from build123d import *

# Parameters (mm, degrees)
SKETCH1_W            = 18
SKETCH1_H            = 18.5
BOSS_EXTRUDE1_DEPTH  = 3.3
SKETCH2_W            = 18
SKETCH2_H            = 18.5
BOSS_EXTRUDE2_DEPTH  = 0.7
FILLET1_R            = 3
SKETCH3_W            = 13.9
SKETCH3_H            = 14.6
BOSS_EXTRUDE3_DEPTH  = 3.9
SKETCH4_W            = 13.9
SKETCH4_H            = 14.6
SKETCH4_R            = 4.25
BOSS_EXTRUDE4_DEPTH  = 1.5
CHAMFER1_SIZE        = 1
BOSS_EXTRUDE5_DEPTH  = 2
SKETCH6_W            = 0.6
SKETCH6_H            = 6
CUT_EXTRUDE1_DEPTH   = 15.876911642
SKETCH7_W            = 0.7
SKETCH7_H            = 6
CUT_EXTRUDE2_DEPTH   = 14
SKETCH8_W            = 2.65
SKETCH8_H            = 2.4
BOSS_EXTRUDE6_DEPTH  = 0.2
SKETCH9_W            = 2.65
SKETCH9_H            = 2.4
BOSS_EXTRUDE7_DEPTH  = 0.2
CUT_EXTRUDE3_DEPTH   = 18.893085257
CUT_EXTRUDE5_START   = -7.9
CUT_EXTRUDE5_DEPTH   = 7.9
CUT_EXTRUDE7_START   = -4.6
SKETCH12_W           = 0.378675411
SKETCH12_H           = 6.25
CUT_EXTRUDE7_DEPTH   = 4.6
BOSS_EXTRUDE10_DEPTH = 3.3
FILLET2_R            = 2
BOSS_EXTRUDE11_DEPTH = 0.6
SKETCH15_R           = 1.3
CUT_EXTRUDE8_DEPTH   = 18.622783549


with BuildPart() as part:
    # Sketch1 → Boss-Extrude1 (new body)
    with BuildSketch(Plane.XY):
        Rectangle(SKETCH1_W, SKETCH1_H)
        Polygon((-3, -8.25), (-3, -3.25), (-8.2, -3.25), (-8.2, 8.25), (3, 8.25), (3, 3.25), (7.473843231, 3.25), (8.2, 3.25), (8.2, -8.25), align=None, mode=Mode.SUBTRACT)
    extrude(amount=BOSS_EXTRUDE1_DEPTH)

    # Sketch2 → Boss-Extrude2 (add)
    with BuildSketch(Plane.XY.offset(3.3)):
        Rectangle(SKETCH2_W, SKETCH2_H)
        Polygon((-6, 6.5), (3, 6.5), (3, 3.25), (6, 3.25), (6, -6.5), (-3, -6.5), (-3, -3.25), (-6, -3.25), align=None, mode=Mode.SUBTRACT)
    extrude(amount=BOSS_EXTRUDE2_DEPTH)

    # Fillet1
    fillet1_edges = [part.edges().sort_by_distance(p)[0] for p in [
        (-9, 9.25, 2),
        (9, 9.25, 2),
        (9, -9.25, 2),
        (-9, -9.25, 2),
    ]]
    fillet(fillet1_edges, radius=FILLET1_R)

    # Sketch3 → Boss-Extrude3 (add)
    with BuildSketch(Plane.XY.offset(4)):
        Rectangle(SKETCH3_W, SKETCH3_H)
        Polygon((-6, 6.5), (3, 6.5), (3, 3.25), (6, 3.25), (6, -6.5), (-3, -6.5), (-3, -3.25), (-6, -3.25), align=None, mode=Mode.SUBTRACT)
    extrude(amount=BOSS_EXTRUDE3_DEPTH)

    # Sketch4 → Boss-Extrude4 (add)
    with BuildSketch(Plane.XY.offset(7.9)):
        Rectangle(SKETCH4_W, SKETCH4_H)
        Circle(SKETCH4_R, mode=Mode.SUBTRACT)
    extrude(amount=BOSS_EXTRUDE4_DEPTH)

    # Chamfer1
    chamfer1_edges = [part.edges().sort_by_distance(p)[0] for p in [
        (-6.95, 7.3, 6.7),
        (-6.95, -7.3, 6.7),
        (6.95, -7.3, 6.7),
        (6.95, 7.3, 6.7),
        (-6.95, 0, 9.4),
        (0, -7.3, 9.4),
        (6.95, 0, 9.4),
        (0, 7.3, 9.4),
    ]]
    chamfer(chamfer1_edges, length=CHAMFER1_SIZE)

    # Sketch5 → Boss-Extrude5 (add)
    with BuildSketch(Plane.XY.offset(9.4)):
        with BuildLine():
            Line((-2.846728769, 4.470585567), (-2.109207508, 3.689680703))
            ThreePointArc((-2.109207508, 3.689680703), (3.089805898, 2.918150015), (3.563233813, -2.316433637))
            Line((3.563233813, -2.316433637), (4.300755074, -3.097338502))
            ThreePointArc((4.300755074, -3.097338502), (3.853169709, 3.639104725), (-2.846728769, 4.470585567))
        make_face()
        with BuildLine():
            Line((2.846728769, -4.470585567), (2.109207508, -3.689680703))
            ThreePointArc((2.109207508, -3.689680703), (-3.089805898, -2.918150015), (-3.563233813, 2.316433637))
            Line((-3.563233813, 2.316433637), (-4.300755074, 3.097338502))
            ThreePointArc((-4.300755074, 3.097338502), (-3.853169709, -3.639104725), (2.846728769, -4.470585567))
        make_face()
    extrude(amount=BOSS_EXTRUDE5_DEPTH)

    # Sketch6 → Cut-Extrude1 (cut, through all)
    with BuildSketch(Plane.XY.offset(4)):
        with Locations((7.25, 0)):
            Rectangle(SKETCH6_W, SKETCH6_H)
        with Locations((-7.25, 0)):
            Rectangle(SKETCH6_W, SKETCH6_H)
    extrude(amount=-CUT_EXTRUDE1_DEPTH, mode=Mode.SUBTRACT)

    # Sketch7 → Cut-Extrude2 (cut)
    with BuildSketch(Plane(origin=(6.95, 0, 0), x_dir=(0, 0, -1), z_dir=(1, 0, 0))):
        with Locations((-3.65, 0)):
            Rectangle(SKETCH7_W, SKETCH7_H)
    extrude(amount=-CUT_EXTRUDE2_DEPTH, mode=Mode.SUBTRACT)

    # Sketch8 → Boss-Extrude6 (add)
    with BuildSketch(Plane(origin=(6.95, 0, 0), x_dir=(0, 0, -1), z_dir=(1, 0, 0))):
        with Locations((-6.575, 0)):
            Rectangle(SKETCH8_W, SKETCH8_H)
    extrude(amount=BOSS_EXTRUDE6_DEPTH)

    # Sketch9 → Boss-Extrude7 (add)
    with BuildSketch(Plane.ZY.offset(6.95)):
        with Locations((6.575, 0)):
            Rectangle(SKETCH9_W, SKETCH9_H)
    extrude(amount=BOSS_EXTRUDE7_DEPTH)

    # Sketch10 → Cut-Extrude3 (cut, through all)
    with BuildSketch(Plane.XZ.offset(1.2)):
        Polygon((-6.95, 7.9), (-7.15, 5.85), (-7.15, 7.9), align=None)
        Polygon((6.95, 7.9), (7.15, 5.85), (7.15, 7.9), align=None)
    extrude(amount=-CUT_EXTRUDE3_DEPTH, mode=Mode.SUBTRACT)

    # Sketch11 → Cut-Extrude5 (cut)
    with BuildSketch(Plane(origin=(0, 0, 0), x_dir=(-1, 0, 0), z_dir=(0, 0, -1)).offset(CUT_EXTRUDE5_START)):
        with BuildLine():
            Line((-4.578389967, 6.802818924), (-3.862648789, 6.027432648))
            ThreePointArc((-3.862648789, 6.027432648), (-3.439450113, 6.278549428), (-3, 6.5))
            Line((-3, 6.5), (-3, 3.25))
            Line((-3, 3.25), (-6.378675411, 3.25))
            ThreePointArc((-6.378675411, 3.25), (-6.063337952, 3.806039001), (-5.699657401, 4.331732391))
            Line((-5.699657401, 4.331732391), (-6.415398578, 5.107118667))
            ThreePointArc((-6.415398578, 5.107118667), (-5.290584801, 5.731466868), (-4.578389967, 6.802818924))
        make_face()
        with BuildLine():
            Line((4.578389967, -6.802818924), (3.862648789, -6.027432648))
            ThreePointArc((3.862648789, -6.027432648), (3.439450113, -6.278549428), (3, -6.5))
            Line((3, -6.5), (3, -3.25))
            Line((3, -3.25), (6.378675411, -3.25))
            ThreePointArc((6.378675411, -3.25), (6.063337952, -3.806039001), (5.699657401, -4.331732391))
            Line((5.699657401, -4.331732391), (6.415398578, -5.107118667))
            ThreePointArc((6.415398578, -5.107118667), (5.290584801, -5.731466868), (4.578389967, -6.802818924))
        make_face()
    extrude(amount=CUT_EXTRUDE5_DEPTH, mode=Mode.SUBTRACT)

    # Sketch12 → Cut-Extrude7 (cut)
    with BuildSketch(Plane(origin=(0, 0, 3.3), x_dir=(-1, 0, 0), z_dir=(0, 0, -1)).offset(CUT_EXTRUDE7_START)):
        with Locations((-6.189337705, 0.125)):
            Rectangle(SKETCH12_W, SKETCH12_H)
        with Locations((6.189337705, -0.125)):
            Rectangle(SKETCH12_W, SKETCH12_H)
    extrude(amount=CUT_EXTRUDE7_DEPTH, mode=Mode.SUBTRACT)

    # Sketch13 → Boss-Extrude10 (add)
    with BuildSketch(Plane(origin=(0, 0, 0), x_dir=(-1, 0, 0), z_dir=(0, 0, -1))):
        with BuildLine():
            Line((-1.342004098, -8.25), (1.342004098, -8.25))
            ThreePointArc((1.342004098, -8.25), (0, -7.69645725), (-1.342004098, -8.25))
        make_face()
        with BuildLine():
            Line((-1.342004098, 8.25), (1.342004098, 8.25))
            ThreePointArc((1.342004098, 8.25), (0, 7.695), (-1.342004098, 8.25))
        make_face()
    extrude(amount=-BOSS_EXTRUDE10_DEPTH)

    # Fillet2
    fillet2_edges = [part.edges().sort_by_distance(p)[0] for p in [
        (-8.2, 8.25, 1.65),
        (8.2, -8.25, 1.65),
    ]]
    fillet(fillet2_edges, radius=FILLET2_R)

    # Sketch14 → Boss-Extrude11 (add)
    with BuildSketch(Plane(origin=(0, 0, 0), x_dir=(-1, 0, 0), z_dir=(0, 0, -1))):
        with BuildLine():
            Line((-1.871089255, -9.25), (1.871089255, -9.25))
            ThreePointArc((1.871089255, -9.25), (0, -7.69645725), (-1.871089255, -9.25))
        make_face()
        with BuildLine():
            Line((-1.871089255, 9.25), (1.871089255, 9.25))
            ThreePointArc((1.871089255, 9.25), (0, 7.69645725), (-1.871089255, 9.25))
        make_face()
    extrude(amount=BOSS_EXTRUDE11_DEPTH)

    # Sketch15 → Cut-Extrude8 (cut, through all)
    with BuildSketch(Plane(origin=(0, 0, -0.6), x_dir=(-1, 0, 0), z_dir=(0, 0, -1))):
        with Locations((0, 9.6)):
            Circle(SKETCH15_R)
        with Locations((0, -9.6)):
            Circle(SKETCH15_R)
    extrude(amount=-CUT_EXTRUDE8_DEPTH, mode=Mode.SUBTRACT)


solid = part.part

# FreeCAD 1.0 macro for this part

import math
import FreeCAD as App
import Part
import Sketcher
from FreeCAD import Vector
Q = App.Units.Quantity


def edges_at(feature, points):
    """Names of the edges that pass closest to the given points."""
    edges = feature.Shape.Edges
    near = lambda p: min(range(len(edges)), key=lambda i: edges[i].distToShape(Part.Vertex(*p))[0])
    return sorted({f"Edge{near(p) + 1}" for p in points})

doc = App.newDocument("Part")
body = doc.addObject("PartDesign::Body", "Body")

sketch1 = body.newObject("Sketcher::SketchObject", "Sketch")
sketch1.AttachmentSupport = (doc.getObject("XY_Plane"), [""])
sketch1.MapMode = "FlatFace"
sketch1.addGeometry(Part.LineSegment(Vector(-9, 9, 0), Vector(-9, -9, 0)), False)
sketch1.addGeometry(Part.LineSegment(Vector(-9, -9, 0), Vector(9, -9, 0)), False)
sketch1.addGeometry(Part.LineSegment(Vector(9, -9, 0), Vector(9, 9, 0)), False)
sketch1.addGeometry(Part.LineSegment(Vector(9, 9, 0), Vector(-9, 9, 0)), False)
sketch1.addGeometry(Part.LineSegment(Vector(8, -8, 0), Vector(-3, -8, 0)), False)
sketch1.addGeometry(Part.LineSegment(Vector(-3, -8, 0), Vector(-3, -3, 0)), False)
sketch1.addGeometry(Part.LineSegment(Vector(-3, -3, 0), Vector(-8, -3, 0)), False)
sketch1.addGeometry(Part.LineSegment(Vector(-8, -3, 0), Vector(-8, 8, 0)), False)
sketch1.addGeometry(Part.LineSegment(Vector(-8, 8, 0), Vector(3, 8, 0)), False)
sketch1.addGeometry(Part.LineSegment(Vector(3, 8, 0), Vector(3, 3, 0)), False)
sketch1.addGeometry(Part.LineSegment(Vector(3, 3, 0), Vector(8, 3, 0)), False)
sketch1.addGeometry(Part.LineSegment(Vector(8, 3, 0), Vector(8, -8, 0)), False)
sketch1.addConstraint(Sketcher.Constraint("Coincident", 0, 2, 1, 1))
sketch1.addConstraint(Sketcher.Constraint("Coincident", 1, 2, 2, 1))
sketch1.addConstraint(Sketcher.Constraint("Coincident", 2, 2, 3, 1))
sketch1.addConstraint(Sketcher.Constraint("Coincident", 3, 2, 0, 1))
sketch1.addConstraint(Sketcher.Constraint("Coincident", 4, 2, 5, 1))
sketch1.addConstraint(Sketcher.Constraint("Coincident", 5, 2, 6, 1))
sketch1.addConstraint(Sketcher.Constraint("Coincident", 6, 2, 7, 1))
sketch1.addConstraint(Sketcher.Constraint("Coincident", 7, 2, 8, 1))
sketch1.addConstraint(Sketcher.Constraint("Coincident", 8, 2, 9, 1))
sketch1.addConstraint(Sketcher.Constraint("Coincident", 9, 2, 10, 1))
sketch1.addConstraint(Sketcher.Constraint("Coincident", 10, 2, 11, 1))
sketch1.addConstraint(Sketcher.Constraint("Coincident", 11, 2, 4, 1))
sketch1.addConstraint(Sketcher.Constraint("Vertical", 0))
sketch1.addConstraint(Sketcher.Constraint("Horizontal", 1))
sketch1.addConstraint(Sketcher.Constraint("Vertical", 2))
sketch1.addConstraint(Sketcher.Constraint("Horizontal", 3))
sketch1.addConstraint(Sketcher.Constraint("Horizontal", 4))
sketch1.addConstraint(Sketcher.Constraint("Vertical", 5))
sketch1.addConstraint(Sketcher.Constraint("Horizontal", 6))
sketch1.addConstraint(Sketcher.Constraint("Vertical", 7))
sketch1.addConstraint(Sketcher.Constraint("Horizontal", 8))
sketch1.addConstraint(Sketcher.Constraint("Vertical", 9))
sketch1.addConstraint(Sketcher.Constraint("Horizontal", 10))
sketch1.addConstraint(Sketcher.Constraint("Vertical", 11))
sketch1.addConstraint(Sketcher.Constraint("Symmetric", 0, 2, 2, 2, -1, 1))
sketch1.addConstraint(Sketcher.Constraint("Symmetric", 4, 2, 8, 2, -1, 1))
sketch1.addConstraint(Sketcher.Constraint("Symmetric", 6, 2, 10, 2, -1, 1))
sketch1.addConstraint(Sketcher.Constraint("DistanceX", 1, 1, 1, 2, Q("18 mm")))
sketch1.addConstraint(Sketcher.Constraint("DistanceY", 5, 1, 5, 2, Q("5 mm")))
sketch1.addConstraint(Sketcher.Constraint("DistanceX", 4, 2, 4, 1, Q("11.2 mm")))
sketch1.addConstraint(Sketcher.Constraint("DistanceX", 6, 2, 6, 1, Q("5.2 mm")))
sketch1.addConstraint(Sketcher.Constraint("DistanceY", 0, 2, 0, 1, Q("18.5 mm")))
sketch1.addConstraint(Sketcher.Constraint("DistanceY", 7, 1, 7, 2, Q("11.5 mm")))
pad1 = body.newObject("PartDesign::Pad", "Pad")
pad1.Profile = sketch1
pad1.Length = 3.3

sketch2 = body.newObject("Sketcher::SketchObject", "Sketch001")
sketch2.AttachmentSupport = (doc.getObject("XY_Plane"), [""])
sketch2.MapMode = "FlatFace"
sketch2.AttachmentOffset = App.Placement(Vector(0, 0, 3.3), App.Rotation())
sketch2.addGeometry(Part.LineSegment(Vector(-9, 9.2, 0), Vector(-9, -9.2, 0)), False)
sketch2.addGeometry(Part.LineSegment(Vector(-9, -9.2, 0), Vector(9, -9.2, 0)), False)
sketch2.addGeometry(Part.LineSegment(Vector(9, -9.2, 0), Vector(9, 9.2, 0)), False)
sketch2.addGeometry(Part.LineSegment(Vector(9, 9.2, 0), Vector(-9, 9.2, 0)), False)
sketch2.addGeometry(Part.LineSegment(Vector(-6, -3.2, 0), Vector(-6, 6.5, 0)), False)
sketch2.addGeometry(Part.LineSegment(Vector(-6, 6.5, 0), Vector(3, 6.5, 0)), False)
sketch2.addGeometry(Part.LineSegment(Vector(3, 6.5, 0), Vector(3, 3.2, 0)), False)
sketch2.addGeometry(Part.LineSegment(Vector(3, 3.2, 0), Vector(6, 3.2, 0)), False)
sketch2.addGeometry(Part.LineSegment(Vector(6, 3.2, 0), Vector(6, -6.5, 0)), False)
sketch2.addGeometry(Part.LineSegment(Vector(6, -6.5, 0), Vector(-3, -6.5, 0)), False)
sketch2.addGeometry(Part.LineSegment(Vector(-3, -6.5, 0), Vector(-3, -3.2, 0)), False)
sketch2.addGeometry(Part.LineSegment(Vector(-3, -3.2, 0), Vector(-6, -3.2, 0)), False)
sketch2.addConstraint(Sketcher.Constraint("Coincident", 0, 2, 1, 1))
sketch2.addConstraint(Sketcher.Constraint("Coincident", 1, 2, 2, 1))
sketch2.addConstraint(Sketcher.Constraint("Coincident", 2, 2, 3, 1))
sketch2.addConstraint(Sketcher.Constraint("Coincident", 3, 2, 0, 1))
sketch2.addConstraint(Sketcher.Constraint("Coincident", 4, 2, 5, 1))
sketch2.addConstraint(Sketcher.Constraint("Coincident", 5, 2, 6, 1))
sketch2.addConstraint(Sketcher.Constraint("Coincident", 6, 2, 7, 1))
sketch2.addConstraint(Sketcher.Constraint("Coincident", 7, 2, 8, 1))
sketch2.addConstraint(Sketcher.Constraint("Coincident", 8, 2, 9, 1))
sketch2.addConstraint(Sketcher.Constraint("Coincident", 9, 2, 10, 1))
sketch2.addConstraint(Sketcher.Constraint("Coincident", 10, 2, 11, 1))
sketch2.addConstraint(Sketcher.Constraint("Coincident", 11, 2, 4, 1))
sketch2.addConstraint(Sketcher.Constraint("Vertical", 0))
sketch2.addConstraint(Sketcher.Constraint("Horizontal", 1))
sketch2.addConstraint(Sketcher.Constraint("Vertical", 2))
sketch2.addConstraint(Sketcher.Constraint("Horizontal", 3))
sketch2.addConstraint(Sketcher.Constraint("Vertical", 4))
sketch2.addConstraint(Sketcher.Constraint("Horizontal", 5))
sketch2.addConstraint(Sketcher.Constraint("Vertical", 6))
sketch2.addConstraint(Sketcher.Constraint("Horizontal", 7))
sketch2.addConstraint(Sketcher.Constraint("Vertical", 8))
sketch2.addConstraint(Sketcher.Constraint("Horizontal", 9))
sketch2.addConstraint(Sketcher.Constraint("Vertical", 10))
sketch2.addConstraint(Sketcher.Constraint("Horizontal", 11))
sketch2.addConstraint(Sketcher.Constraint("Symmetric", 0, 2, 2, 2, -1, 1))
sketch2.addConstraint(Sketcher.Constraint("Symmetric", 4, 2, 8, 2, -1, 1))
sketch2.addConstraint(Sketcher.Constraint("Symmetric", 6, 2, 10, 2, -1, 1))
sketch2.addConstraint(Sketcher.Constraint("DistanceX", 1, 1, 1, 2, Q("18 mm")))
sketch2.addConstraint(Sketcher.Constraint("DistanceX", 5, 1, 5, 2, Q("9 mm")))
sketch2.addConstraint(Sketcher.Constraint("DistanceX", 7, 1, 7, 2, Q("3 mm")))
sketch2.addConstraint(Sketcher.Constraint("DistanceY", 0, 2, 0, 1, Q("18.5 mm")))
sketch2.addConstraint(Sketcher.Constraint("DistanceY", 6, 2, 2, 2, Q("6 mm")))
sketch2.addConstraint(Sketcher.Constraint("DistanceY", 8, 2, 5, 2, Q("13 mm")))
pad2 = body.newObject("PartDesign::Pad", "Pad001")
pad2.Profile = sketch2
pad2.Length = 0.7
doc.recompute()

fillet = body.newObject("PartDesign::Fillet", "Fillet")
fillet.Base = (pad2, edges_at(pad2, [
    (-9, 9.25, 2),
    (9, 9.25, 2),
    (9, -9.25, 2),
    (-9, -9.25, 2),
]))
fillet.Radius = 3

sketch3 = body.newObject("Sketcher::SketchObject", "Sketch002")
sketch3.AttachmentSupport = (doc.getObject("XY_Plane"), [""])
sketch3.MapMode = "FlatFace"
sketch3.AttachmentOffset = App.Placement(Vector(0, 0, 4), App.Rotation())
sketch3.addGeometry(Part.LineSegment(Vector(-7, 7.3, 0), Vector(-7, -7.3, 0)), False)
sketch3.addGeometry(Part.LineSegment(Vector(-7, -7.3, 0), Vector(7, -7.3, 0)), False)
sketch3.addGeometry(Part.LineSegment(Vector(7, -7.3, 0), Vector(7, 7.3, 0)), False)
sketch3.addGeometry(Part.LineSegment(Vector(7, 7.3, 0), Vector(-7, 7.3, 0)), False)
sketch3.addGeometry(Part.LineSegment(Vector(-6, -3.2, 0), Vector(-6, 6.5, 0)), False)
sketch3.addGeometry(Part.LineSegment(Vector(-6, 6.5, 0), Vector(3, 6.5, 0)), False)
sketch3.addGeometry(Part.LineSegment(Vector(3, 6.5, 0), Vector(3, 3.2, 0)), False)
sketch3.addGeometry(Part.LineSegment(Vector(3, 3.2, 0), Vector(6, 3.2, 0)), False)
sketch3.addGeometry(Part.LineSegment(Vector(6, 3.2, 0), Vector(6, -6.5, 0)), False)
sketch3.addGeometry(Part.LineSegment(Vector(6, -6.5, 0), Vector(-3, -6.5, 0)), False)
sketch3.addGeometry(Part.LineSegment(Vector(-3, -6.5, 0), Vector(-3, -3.2, 0)), False)
sketch3.addGeometry(Part.LineSegment(Vector(-3, -3.2, 0), Vector(-6, -3.2, 0)), False)
sketch3.addConstraint(Sketcher.Constraint("Coincident", 0, 2, 1, 1))
sketch3.addConstraint(Sketcher.Constraint("Coincident", 1, 2, 2, 1))
sketch3.addConstraint(Sketcher.Constraint("Coincident", 2, 2, 3, 1))
sketch3.addConstraint(Sketcher.Constraint("Coincident", 3, 2, 0, 1))
sketch3.addConstraint(Sketcher.Constraint("Coincident", 4, 2, 5, 1))
sketch3.addConstraint(Sketcher.Constraint("Coincident", 5, 2, 6, 1))
sketch3.addConstraint(Sketcher.Constraint("Coincident", 6, 2, 7, 1))
sketch3.addConstraint(Sketcher.Constraint("Coincident", 7, 2, 8, 1))
sketch3.addConstraint(Sketcher.Constraint("Coincident", 8, 2, 9, 1))
sketch3.addConstraint(Sketcher.Constraint("Coincident", 9, 2, 10, 1))
sketch3.addConstraint(Sketcher.Constraint("Coincident", 10, 2, 11, 1))
sketch3.addConstraint(Sketcher.Constraint("Coincident", 11, 2, 4, 1))
sketch3.addConstraint(Sketcher.Constraint("Vertical", 0))
sketch3.addConstraint(Sketcher.Constraint("Horizontal", 1))
sketch3.addConstraint(Sketcher.Constraint("Vertical", 2))
sketch3.addConstraint(Sketcher.Constraint("Horizontal", 3))
sketch3.addConstraint(Sketcher.Constraint("Vertical", 4))
sketch3.addConstraint(Sketcher.Constraint("Horizontal", 5))
sketch3.addConstraint(Sketcher.Constraint("Vertical", 6))
sketch3.addConstraint(Sketcher.Constraint("Horizontal", 7))
sketch3.addConstraint(Sketcher.Constraint("Vertical", 8))
sketch3.addConstraint(Sketcher.Constraint("Horizontal", 9))
sketch3.addConstraint(Sketcher.Constraint("Vertical", 10))
sketch3.addConstraint(Sketcher.Constraint("Horizontal", 11))
sketch3.addConstraint(Sketcher.Constraint("Symmetric", 0, 2, 2, 2, -1, 1))
sketch3.addConstraint(Sketcher.Constraint("Symmetric", 4, 2, 8, 2, -1, 1))
sketch3.addConstraint(Sketcher.Constraint("Symmetric", 6, 2, 10, 2, -1, 1))
sketch3.addConstraint(Sketcher.Constraint("DistanceX", 5, 1, 5, 2, Q("9 mm")))
sketch3.addConstraint(Sketcher.Constraint("DistanceX", 7, 1, 7, 2, Q("3 mm")))
sketch3.addConstraint(Sketcher.Constraint("DistanceX", 1, 1, 1, 2, Q("13.9 mm")))
sketch3.addConstraint(Sketcher.Constraint("DistanceY", 0, 2, 0, 1, Q("14.6 mm")))
sketch3.addConstraint(Sketcher.Constraint("DistanceY", 8, 2, 5, 2, Q("13 mm")))
sketch3.addConstraint(Sketcher.Constraint("DistanceY", 4, 1, 4, 2, Q("9.75 mm")))
pad3 = body.newObject("PartDesign::Pad", "Pad002")
pad3.Profile = sketch3
pad3.Length = 3.9

sketch4 = body.newObject("Sketcher::SketchObject", "Sketch003")
sketch4.AttachmentSupport = (doc.getObject("XY_Plane"), [""])
sketch4.MapMode = "FlatFace"
sketch4.AttachmentOffset = App.Placement(Vector(0, 0, 7.9), App.Rotation())
sketch4.addGeometry(Part.LineSegment(Vector(-7, 7.3, 0), Vector(-7, -7.3, 0)), False)
sketch4.addGeometry(Part.LineSegment(Vector(-7, -7.3, 0), Vector(7, -7.3, 0)), False)
sketch4.addGeometry(Part.LineSegment(Vector(7, -7.3, 0), Vector(7, 7.3, 0)), False)
sketch4.addGeometry(Part.LineSegment(Vector(7, 7.3, 0), Vector(-7, 7.3, 0)), False)
sketch4.addGeometry(Part.Circle(Vector(0, 0, 0), Vector(0, 0, 1), 4.2), False)
sketch4.addConstraint(Sketcher.Constraint("Coincident", 0, 2, 1, 1))
sketch4.addConstraint(Sketcher.Constraint("Coincident", 1, 2, 2, 1))
sketch4.addConstraint(Sketcher.Constraint("Coincident", 2, 2, 3, 1))
sketch4.addConstraint(Sketcher.Constraint("Coincident", 3, 2, 0, 1))
sketch4.addConstraint(Sketcher.Constraint("Vertical", 0))
sketch4.addConstraint(Sketcher.Constraint("Horizontal", 1))
sketch4.addConstraint(Sketcher.Constraint("Vertical", 2))
sketch4.addConstraint(Sketcher.Constraint("Horizontal", 3))
sketch4.addConstraint(Sketcher.Constraint("Coincident", 4, 3, -1, 1))
sketch4.addConstraint(Sketcher.Constraint("Symmetric", 0, 2, 2, 2, -1, 1))
sketch4.addConstraint(Sketcher.Constraint("Diameter", 4, Q("8.5 mm")))
sketch4.addConstraint(Sketcher.Constraint("DistanceX", 1, 1, 1, 2, Q("13.9 mm")))
sketch4.addConstraint(Sketcher.Constraint("DistanceY", 0, 2, 0, 1, Q("14.6 mm")))
pad4 = body.newObject("PartDesign::Pad", "Pad003")
pad4.Profile = sketch4
pad4.Length = 1.5
doc.recompute()

chamfer = body.newObject("PartDesign::Chamfer", "Chamfer")
chamfer.Base = (pad4, edges_at(pad4, [
    (-6.95, 7.3, 6.7),
    (-6.95, -7.3, 6.7),
    (6.95, -7.3, 6.7),
    (6.95, 7.3, 6.7),
    (-6.95, 0, 9.4),
    (0, -7.3, 9.4),
    (6.95, 0, 9.4),
    (0, 7.3, 9.4),
]))
chamfer.Size = 1

sketch5 = body.newObject("Sketcher::SketchObject", "Sketch004")
sketch5.AttachmentSupport = (doc.getObject("XY_Plane"), [""])
sketch5.MapMode = "FlatFace"
sketch5.AttachmentOffset = App.Placement(Vector(0, 0, 9.4), App.Rotation())
sketch5.addGeometry(Part.LineSegment(Vector(-2.8, 4.5, 0), Vector(-2.1, 3.7, 0)), False)
sketch5.addGeometry(Part.ArcOfCircle(Part.Circle(Vector(0, 0, 0), Vector(0, 0, 1), 4.2), math.radians(-33), math.radians(120)), False)
sketch5.addGeometry(Part.LineSegment(Vector(3.6, -2.3, 0), Vector(4.3, -3.1, 0)), False)
sketch5.addGeometry(Part.ArcOfCircle(Part.Circle(Vector(0, 0, 0), Vector(0, 0, 1), 5.3), math.radians(-36), math.radians(122)), False)
sketch5.addGeometry(Part.LineSegment(Vector(2.8, -4.5, 0), Vector(2.1, -3.7, 0)), False)
sketch5.addGeometry(Part.ArcOfCircle(Part.Circle(Vector(0, 0, 0), Vector(0, 0, 1), 4.2), math.radians(147), math.radians(300)), False)
sketch5.addGeometry(Part.LineSegment(Vector(-3.6, 2.3, 0), Vector(-4.3, 3.1, 0)), False)
sketch5.addGeometry(Part.ArcOfCircle(Part.Circle(Vector(0, 0, 0), Vector(0, 0, 1), 5.3), math.radians(144), math.radians(302)), False)
sketch5.addConstraint(Sketcher.Constraint("Coincident", 0, 2, 1, 2))
sketch5.addConstraint(Sketcher.Constraint("Coincident", 1, 1, 2, 1))
sketch5.addConstraint(Sketcher.Constraint("Coincident", 2, 2, 3, 1))
sketch5.addConstraint(Sketcher.Constraint("Coincident", 3, 2, 0, 1))
sketch5.addConstraint(Sketcher.Constraint("Coincident", 4, 2, 5, 2))
sketch5.addConstraint(Sketcher.Constraint("Coincident", 5, 1, 6, 1))
sketch5.addConstraint(Sketcher.Constraint("Coincident", 6, 2, 7, 1))
sketch5.addConstraint(Sketcher.Constraint("Coincident", 7, 2, 4, 1))
sketch5.addConstraint(Sketcher.Constraint("Coincident", 1, 3, -1, 1))
sketch5.addConstraint(Sketcher.Constraint("Coincident", 3, 3, -1, 1))
sketch5.addConstraint(Sketcher.Constraint("Coincident", 5, 3, -1, 1))
sketch5.addConstraint(Sketcher.Constraint("Coincident", 7, 3, -1, 1))
sketch5.addConstraint(Sketcher.Constraint("Equal", 1, 5))
sketch5.addConstraint(Sketcher.Constraint("Equal", 3, 7))
sketch5.addConstraint(Sketcher.Constraint("Parallel", 0, 2))
sketch5.addConstraint(Sketcher.Constraint("Parallel", 2, 4))
sketch5.addConstraint(Sketcher.Constraint("Parallel", 4, 6))
sketch5.addConstraint(Sketcher.Constraint("Equal", 0, 2))
sketch5.addConstraint(Sketcher.Constraint("Equal", 2, 4))
sketch5.addConstraint(Sketcher.Constraint("Equal", 4, 6))
sketch5.addConstraint(Sketcher.Constraint("Radius", 3, Q("5.3 mm")))
sketch5.addConstraint(Sketcher.Constraint("Radius", 1, Q("4.25 mm")))
sketch5.addConstraint(Sketcher.Constraint("DistanceY", -1, 1, 0, 2, Q("3.689681 mm")))
sketch5.addConstraint(Sketcher.Constraint("DistanceY", 2, 2, -1, 1, Q("3.097339 mm")))
pad5 = body.newObject("PartDesign::Pad", "Pad004")
pad5.Profile = sketch5
pad5.Length = 2

sketch6 = body.newObject("Sketcher::SketchObject", "Sketch005")
sketch6.AttachmentSupport = (doc.getObject("XY_Plane"), [""])
sketch6.MapMode = "FlatFace"
sketch6.AttachmentOffset = App.Placement(Vector(0, 0, 4), App.Rotation())
sketch6.addGeometry(Part.LineSegment(Vector(7, 3, 0), Vector(7, -3, 0)), False)
sketch6.addGeometry(Part.LineSegment(Vector(7, -3, 0), Vector(7.5, -3, 0)), False)
sketch6.addGeometry(Part.LineSegment(Vector(7.5, -3, 0), Vector(7.5, 3, 0)), False)
sketch6.addGeometry(Part.LineSegment(Vector(7.5, 3, 0), Vector(7, 3, 0)), False)
sketch6.addGeometry(Part.LineSegment(Vector(-7.5, 3, 0), Vector(-7.5, -3, 0)), False)
sketch6.addGeometry(Part.LineSegment(Vector(-7.5, -3, 0), Vector(-7, -3, 0)), False)
sketch6.addGeometry(Part.LineSegment(Vector(-7, -3, 0), Vector(-7, 3, 0)), False)
sketch6.addGeometry(Part.LineSegment(Vector(-7, 3, 0), Vector(-7.5, 3, 0)), False)
sketch6.addConstraint(Sketcher.Constraint("Coincident", 0, 2, 1, 1))
sketch6.addConstraint(Sketcher.Constraint("Coincident", 1, 2, 2, 1))
sketch6.addConstraint(Sketcher.Constraint("Coincident", 2, 2, 3, 1))
sketch6.addConstraint(Sketcher.Constraint("Coincident", 3, 2, 0, 1))
sketch6.addConstraint(Sketcher.Constraint("Coincident", 4, 2, 5, 1))
sketch6.addConstraint(Sketcher.Constraint("Coincident", 5, 2, 6, 1))
sketch6.addConstraint(Sketcher.Constraint("Coincident", 6, 2, 7, 1))
sketch6.addConstraint(Sketcher.Constraint("Coincident", 7, 2, 4, 1))
sketch6.addConstraint(Sketcher.Constraint("Vertical", 0))
sketch6.addConstraint(Sketcher.Constraint("Horizontal", 1))
sketch6.addConstraint(Sketcher.Constraint("Vertical", 2))
sketch6.addConstraint(Sketcher.Constraint("Horizontal", 3))
sketch6.addConstraint(Sketcher.Constraint("Vertical", 4))
sketch6.addConstraint(Sketcher.Constraint("Horizontal", 5))
sketch6.addConstraint(Sketcher.Constraint("Vertical", 6))
sketch6.addConstraint(Sketcher.Constraint("Horizontal", 7))
sketch6.addConstraint(Sketcher.Constraint("Symmetric", 2, 2, 4, 2, -1, 1))
sketch6.addConstraint(Sketcher.Constraint("Symmetric", 0, 2, 6, 2, -1, 1))
sketch6.addConstraint(Sketcher.Constraint("Horizontal", 1, 2, 4, 2))
sketch6.addConstraint(Sketcher.Constraint("DistanceY", 0, 2, 0, 1, Q("6 mm")))
sketch6.addConstraint(Sketcher.Constraint("DistanceX", 1, 1, 1, 2, Q("0.6 mm")))
sketch6.addConstraint(Sketcher.Constraint("DistanceX", 4, 2, 0, 2, Q("14.5 mm")))
pocket1 = body.newObject("PartDesign::Pocket", "Pocket")
pocket1.Profile = sketch6
pocket1.Type = "ThroughAll"

sketch7 = body.newObject("Sketcher::SketchObject", "Sketch006")
sketch7.AttachmentSupport = (doc.getObject("YZ_Plane"), [""])
sketch7.MapMode = "FlatFace"
sketch7.AttachmentOffset = App.Placement(Vector(0, 0, 6.95), App.Rotation())
sketch7.addGeometry(Part.LineSegment(Vector(3, 4, 0), Vector(-3, 4, 0)), False)
sketch7.addGeometry(Part.LineSegment(Vector(-3, 4, 0), Vector(-3, 3.3, 0)), False)
sketch7.addGeometry(Part.LineSegment(Vector(-3, 3.3, 0), Vector(3, 3.3, 0)), False)
sketch7.addGeometry(Part.LineSegment(Vector(3, 3.3, 0), Vector(3, 4, 0)), False)
sketch7.addConstraint(Sketcher.Constraint("Coincident", 0, 2, 1, 1))
sketch7.addConstraint(Sketcher.Constraint("Coincident", 1, 2, 2, 1))
sketch7.addConstraint(Sketcher.Constraint("Coincident", 2, 2, 3, 1))
sketch7.addConstraint(Sketcher.Constraint("Coincident", 3, 2, 0, 1))
sketch7.addConstraint(Sketcher.Constraint("Horizontal", 0))
sketch7.addConstraint(Sketcher.Constraint("Vertical", 1))
sketch7.addConstraint(Sketcher.Constraint("Horizontal", 2))
sketch7.addConstraint(Sketcher.Constraint("Vertical", 3))
sketch7.addConstraint(Sketcher.Constraint("DistanceX", 0, 2, 0, 1, Q("6 mm")))
sketch7.addConstraint(Sketcher.Constraint("DistanceY", 1, 2, 1, 1, Q("0.7 mm")))
sketch7.addConstraint(Sketcher.Constraint("DistanceX", 0, 2, -1, 1, Q("3 mm")))
sketch7.addConstraint(Sketcher.Constraint("DistanceY", -1, 1, 0, 2, Q("4 mm")))
pocket2 = body.newObject("PartDesign::Pocket", "Pocket001")
pocket2.Profile = sketch7
pocket2.Length = 14

sketch8 = body.newObject("Sketcher::SketchObject", "Sketch007")
sketch8.AttachmentSupport = (doc.getObject("YZ_Plane"), [""])
sketch8.MapMode = "FlatFace"
sketch8.AttachmentOffset = App.Placement(Vector(0, 0, 6.95), App.Rotation())
sketch8.addGeometry(Part.LineSegment(Vector(1.2, 7.9, 0), Vector(-1.2, 7.9, 0)), False)
sketch8.addGeometry(Part.LineSegment(Vector(-1.2, 7.9, 0), Vector(-1.2, 5.2, 0)), False)
sketch8.addGeometry(Part.LineSegment(Vector(-1.2, 5.2, 0), Vector(1.2, 5.2, 0)), False)
sketch8.addGeometry(Part.LineSegment(Vector(1.2, 5.2, 0), Vector(1.2, 7.9, 0)), False)
sketch8.addConstraint(Sketcher.Constraint("Coincident", 0, 2, 1, 1))
sketch8.addConstraint(Sketcher.Constraint("Coincident", 1, 2, 2, 1))
sketch8.addConstraint(Sketcher.Constraint("Coincident", 2, 2, 3, 1))
sketch8.addConstraint(Sketcher.Constraint("Coincident", 3, 2, 0, 1))
sketch8.addConstraint(Sketcher.Constraint("Horizontal", 0))
sketch8.addConstraint(Sketcher.Constraint("Vertical", 1))
sketch8.addConstraint(Sketcher.Constraint("Horizontal", 2))
sketch8.addConstraint(Sketcher.Constraint("Vertical", 3))
sketch8.addConstraint(Sketcher.Constraint("DistanceX", 0, 2, 0, 1, Q("2.4 mm")))
sketch8.addConstraint(Sketcher.Constraint("DistanceY", 1, 2, 1, 1, Q("2.65 mm")))
sketch8.addConstraint(Sketcher.Constraint("DistanceX", 0, 2, -1, 1, Q("1.2 mm")))
sketch8.addConstraint(Sketcher.Constraint("DistanceY", -1, 1, 0, 2, Q("7.9 mm")))
pad6 = body.newObject("PartDesign::Pad", "Pad005")
pad6.Profile = sketch8
pad6.Length = 0.2

sketch9 = body.newObject("Sketcher::SketchObject", "Sketch008")
sketch9.AttachmentSupport = (doc.getObject("YZ_Plane"), [""])
sketch9.MapMode = "FlatFace"
sketch9.AttachmentOffset = App.Placement(Vector(0, 0, -6.95), App.Rotation())
sketch9.addGeometry(Part.LineSegment(Vector(1.2, 5.2, 0), Vector(-1.2, 5.2, 0)), False)
sketch9.addGeometry(Part.LineSegment(Vector(-1.2, 5.2, 0), Vector(-1.2, 7.9, 0)), False)
sketch9.addGeometry(Part.LineSegment(Vector(-1.2, 7.9, 0), Vector(1.2, 7.9, 0)), False)
sketch9.addGeometry(Part.LineSegment(Vector(1.2, 7.9, 0), Vector(1.2, 5.2, 0)), False)
sketch9.addConstraint(Sketcher.Constraint("Coincident", 0, 2, 1, 1))
sketch9.addConstraint(Sketcher.Constraint("Coincident", 1, 2, 2, 1))
sketch9.addConstraint(Sketcher.Constraint("Coincident", 2, 2, 3, 1))
sketch9.addConstraint(Sketcher.Constraint("Coincident", 3, 2, 0, 1))
sketch9.addConstraint(Sketcher.Constraint("Horizontal", 0))
sketch9.addConstraint(Sketcher.Constraint("Vertical", 1))
sketch9.addConstraint(Sketcher.Constraint("Horizontal", 2))
sketch9.addConstraint(Sketcher.Constraint("Vertical", 3))
sketch9.addConstraint(Sketcher.Constraint("DistanceX", 0, 2, 0, 1, Q("2.4 mm")))
sketch9.addConstraint(Sketcher.Constraint("DistanceY", 1, 1, 1, 2, Q("2.65 mm")))
sketch9.addConstraint(Sketcher.Constraint("DistanceX", 0, 2, -1, 1, Q("1.2 mm")))
sketch9.addConstraint(Sketcher.Constraint("DistanceY", -1, 1, 1, 2, Q("7.9 mm")))
pad7 = body.newObject("PartDesign::Pad", "Pad006")
pad7.Profile = sketch9
pad7.Length = 0.2
pad7.Reversed = True

sketch10 = body.newObject("Sketcher::SketchObject", "Sketch009")
sketch10.AttachmentSupport = (doc.getObject("XZ_Plane"), [""])
sketch10.MapMode = "FlatFace"
sketch10.AttachmentOffset = App.Placement(Vector(0, 0, 1.2), App.Rotation())
sketch10.addGeometry(Part.LineSegment(Vector(-7.15, 5.85, 0), Vector(-6.95, 7.9, 0)), False)
sketch10.addGeometry(Part.LineSegment(Vector(-6.95, 7.9, 0), Vector(-7.15, 7.9, 0)), False)
sketch10.addGeometry(Part.LineSegment(Vector(-7.15, 7.9, 0), Vector(-7.15, 5.85, 0)), False)
sketch10.addGeometry(Part.LineSegment(Vector(6.95, 7.9, 0), Vector(7.15, 5.85, 0)), False)
sketch10.addGeometry(Part.LineSegment(Vector(7.15, 5.85, 0), Vector(7.15, 7.9, 0)), False)
sketch10.addGeometry(Part.LineSegment(Vector(7.15, 7.9, 0), Vector(6.95, 7.9, 0)), False)
sketch10.addConstraint(Sketcher.Constraint("Coincident", 0, 2, 1, 1))
sketch10.addConstraint(Sketcher.Constraint("Coincident", 1, 2, 2, 1))
sketch10.addConstraint(Sketcher.Constraint("Coincident", 2, 2, 0, 1))
sketch10.addConstraint(Sketcher.Constraint("Coincident", 3, 2, 4, 1))
sketch10.addConstraint(Sketcher.Constraint("Coincident", 4, 2, 5, 1))
sketch10.addConstraint(Sketcher.Constraint("Coincident", 5, 2, 3, 1))
sketch10.addConstraint(Sketcher.Constraint("Horizontal", 1))
sketch10.addConstraint(Sketcher.Constraint("Vertical", 2))
sketch10.addConstraint(Sketcher.Constraint("Vertical", 4))
sketch10.addConstraint(Sketcher.Constraint("Horizontal", 5))
sketch10.addConstraint(Sketcher.Constraint("Symmetric", 2, 2, 3, 2, -2))
sketch10.addConstraint(Sketcher.Constraint("Symmetric", 0, 2, 5, 2, -2))
sketch10.addConstraint(Sketcher.Constraint("DistanceX", 1, 2, 1, 1, Q("0.2 mm")))
sketch10.addConstraint(Sketcher.Constraint("DistanceY", 2, 2, 2, 1, Q("2.05 mm")))
sketch10.addConstraint(Sketcher.Constraint("DistanceY", -1, 1, 0, 2, Q("7.9 mm")))
sketch10.addConstraint(Sketcher.Constraint("DistanceX", 0, 2, 3, 2, Q("14.1 mm")))
pocket3 = body.newObject("PartDesign::Pocket", "Pocket002")
pocket3.Profile = sketch10
pocket3.Type = "ThroughAll"

sketch11 = body.newObject("Sketcher::SketchObject", "Sketch010")
sketch11.AttachmentSupport = (doc.getObject("XY_Plane"), [""])
sketch11.MapMode = "FlatFace"
sketch11.AttachmentOffset = App.Placement(Vector(0, 0, 7.9), App.Rotation())
sketch11.addGeometry(Part.LineSegment(Vector(3.9, 6, 0), Vector(4.6, 6.8, 0)), False)
sketch11.addGeometry(Part.ArcOfCircle(Part.Circle(Vector(7.1, 7.7, 0), Vector(0, 0, 1), 2.7), math.radians(-160), math.radians(-105)), False)
sketch11.addGeometry(Part.LineSegment(Vector(6.4, 5.1, 0), Vector(5.7, 4.3, 0)), False)
sketch11.addGeometry(Part.ArcOfCircle(Part.Circle(Vector(0, 0, 0), Vector(0, 0, 1), 7.2), math.radians(27), math.radians(37.23)), False)
sketch11.addGeometry(Part.LineSegment(Vector(6.4, 3.2, 0), Vector(3, 3.2, 0)), False)
sketch11.addGeometry(Part.LineSegment(Vector(3, 3.2, 0), Vector(3, 6.5, 0)), False)
sketch11.addGeometry(Part.ArcOfCircle(Part.Circle(Vector(0, 0, 0), Vector(0, 0, 1), 7.2), math.radians(57.35), math.radians(65.22)), False)
sketch11.addGeometry(Part.LineSegment(Vector(-3.9, -6, 0), Vector(-4.6, -6.8, 0)), False)
sketch11.addGeometry(Part.ArcOfCircle(Part.Circle(Vector(-7.1, -7.7, 0), Vector(0, 0, 1), 2.7), math.radians(20), math.radians(75)), False)
sketch11.addGeometry(Part.LineSegment(Vector(-6.4, -5.1, 0), Vector(-5.7, -4.3, 0)), False)
sketch11.addGeometry(Part.ArcOfCircle(Part.Circle(Vector(0, 0, 0), Vector(0, 0, 1), 7.2), math.radians(-153), math.radians(-142.77)), False)
sketch11.addGeometry(Part.LineSegment(Vector(-6.4, -3.2, 0), Vector(-3, -3.2, 0)), False)
sketch11.addGeometry(Part.LineSegment(Vector(-3, -3.2, 0), Vector(-3, -6.5, 0)), False)
sketch11.addGeometry(Part.ArcOfCircle(Part.Circle(Vector(0, 0, 0), Vector(0, 0, 1), 7.2), math.radians(-122.65), math.radians(-114.78)), False)
sketch11.addConstraint(Sketcher.Constraint("Coincident", 0, 2, 1, 1))
sketch11.addConstraint(Sketcher.Constraint("Coincident", 1, 2, 2, 1))
sketch11.addConstraint(Sketcher.Constraint("Coincident", 2, 2, 3, 2))
sketch11.addConstraint(Sketcher.Constraint("Coincident", 3, 1, 4, 1))
sketch11.addConstraint(Sketcher.Constraint("Coincident", 4, 2, 5, 1))
sketch11.addConstraint(Sketcher.Constraint("Coincident", 5, 2, 6, 2))
sketch11.addConstraint(Sketcher.Constraint("Coincident", 6, 1, 0, 1))
sketch11.addConstraint(Sketcher.Constraint("Coincident", 7, 2, 8, 1))
sketch11.addConstraint(Sketcher.Constraint("Coincident", 8, 2, 9, 1))
sketch11.addConstraint(Sketcher.Constraint("Coincident", 9, 2, 10, 2))
sketch11.addConstraint(Sketcher.Constraint("Coincident", 10, 1, 11, 1))
sketch11.addConstraint(Sketcher.Constraint("Coincident", 11, 2, 12, 1))
sketch11.addConstraint(Sketcher.Constraint("Coincident", 12, 2, 13, 2))
sketch11.addConstraint(Sketcher.Constraint("Coincident", 13, 1, 7, 1))
sketch11.addConstraint(Sketcher.Constraint("Horizontal", 4))
sketch11.addConstraint(Sketcher.Constraint("Vertical", 5))
sketch11.addConstraint(Sketcher.Constraint("Horizontal", 11))
sketch11.addConstraint(Sketcher.Constraint("Vertical", 12))
sketch11.addConstraint(Sketcher.Constraint("Coincident", 3, 3, -1, 1))
sketch11.addConstraint(Sketcher.Constraint("Coincident", 6, 3, -1, 1))
sketch11.addConstraint(Sketcher.Constraint("Coincident", 10, 3, -1, 1))
sketch11.addConstraint(Sketcher.Constraint("Coincident", 13, 3, -1, 1))
sketch11.addConstraint(Sketcher.Constraint("Equal", 3, 6))
sketch11.addConstraint(Sketcher.Constraint("Equal", 1, 8))
sketch11.addConstraint(Sketcher.Constraint("Equal", 6, 10))
sketch11.addConstraint(Sketcher.Constraint("Equal", 10, 13))
sketch11.addConstraint(Sketcher.Constraint("Symmetric", 1, 3, 8, 3, -1, 1))
sketch11.addConstraint(Sketcher.Constraint("Symmetric", 4, 2, 11, 2, -1, 1))
sketch11.addConstraint(Sketcher.Constraint("Parallel", 0, 2))
sketch11.addConstraint(Sketcher.Constraint("Parallel", 2, 7))
sketch11.addConstraint(Sketcher.Constraint("Parallel", 7, 9))
sketch11.addConstraint(Sketcher.Constraint("Equal", 0, 2))
sketch11.addConstraint(Sketcher.Constraint("Equal", 2, 7))
sketch11.addConstraint(Sketcher.Constraint("Equal", 7, 9))
sketch11.addConstraint(Sketcher.Constraint("DistanceX", -1, 1, 4, 2, Q("3 mm")))
sketch11.addConstraint(Sketcher.Constraint("DistanceY", 5, 1, 5, 2, Q("3.25 mm")))
sketch11.addConstraint(Sketcher.Constraint("DistanceY", -1, 1, 5, 2, Q("6.5 mm")))
sketch11.addConstraint(Sketcher.Constraint("Radius", 1, Q("2.720585 mm")))
sketch11.addConstraint(Sketcher.Constraint("DistanceX", -1, 1, 1, 2, Q("6.415399 mm")))
sketch11.addConstraint(Sketcher.Constraint("DistanceY", 1, 2, 0, 2, Q("1.6957 mm")))
sketch11.addConstraint(Sketcher.Constraint("Distance", 0, Q("1.05523 mm")))
sketch11.addConstraint(Sketcher.Constraint("DistanceX", -1, 1, 0, 2, Q("4.57839 mm")))
pocket4 = body.newObject("PartDesign::Pocket", "Pocket003")
pocket4.Profile = sketch11
pocket4.Length = 7.9

sketch12 = body.newObject("Sketcher::SketchObject", "Sketch011")
sketch12.AttachmentSupport = (doc.getObject("XY_Plane"), [""])
sketch12.MapMode = "FlatFace"
sketch12.AttachmentOffset = App.Placement(Vector(0, 0, 7.9), App.Rotation())
sketch12.addGeometry(Part.LineSegment(Vector(6.38, 3.25, 0), Vector(6.38, -3, 0)), False)
sketch12.addGeometry(Part.LineSegment(Vector(6.38, -3, 0), Vector(6, -3, 0)), False)
sketch12.addGeometry(Part.LineSegment(Vector(6, -3, 0), Vector(6, 3.25, 0)), False)
sketch12.addGeometry(Part.LineSegment(Vector(6, 3.25, 0), Vector(6.38, 3.25, 0)), False)
sketch12.addGeometry(Part.LineSegment(Vector(-6, 3, 0), Vector(-6, -3.25, 0)), False)
sketch12.addGeometry(Part.LineSegment(Vector(-6, -3.25, 0), Vector(-6.38, -3.25, 0)), False)
sketch12.addGeometry(Part.LineSegment(Vector(-6.38, -3.25, 0), Vector(-6.38, 3, 0)), False)
sketch12.addGeometry(Part.LineSegment(Vector(-6.38, 3, 0), Vector(-6, 3, 0)), False)
sketch12.addConstraint(Sketcher.Constraint("Coincident", 0, 2, 1, 1))
sketch12.addConstraint(Sketcher.Constraint("Coincident", 1, 2, 2, 1))
sketch12.addConstraint(Sketcher.Constraint("Coincident", 2, 2, 3, 1))
sketch12.addConstraint(Sketcher.Constraint("Coincident", 3, 2, 0, 1))
sketch12.addConstraint(Sketcher.Constraint("Coincident", 4, 2, 5, 1))
sketch12.addConstraint(Sketcher.Constraint("Coincident", 5, 2, 6, 1))
sketch12.addConstraint(Sketcher.Constraint("Coincident", 6, 2, 7, 1))
sketch12.addConstraint(Sketcher.Constraint("Coincident", 7, 2, 4, 1))
sketch12.addConstraint(Sketcher.Constraint("Vertical", 0))
sketch12.addConstraint(Sketcher.Constraint("Horizontal", 1))
sketch12.addConstraint(Sketcher.Constraint("Vertical", 2))
sketch12.addConstraint(Sketcher.Constraint("Horizontal", 3))
sketch12.addConstraint(Sketcher.Constraint("Vertical", 4))
sketch12.addConstraint(Sketcher.Constraint("Horizontal", 5))
sketch12.addConstraint(Sketcher.Constraint("Vertical", 6))
sketch12.addConstraint(Sketcher.Constraint("Horizontal", 7))
sketch12.addConstraint(Sketcher.Constraint("Symmetric", 2, 2, 4, 2, -1, 1))
sketch12.addConstraint(Sketcher.Constraint("Symmetric", 0, 2, 6, 2, -1, 1))
sketch12.addConstraint(Sketcher.Constraint("DistanceY", 0, 2, -1, 1, Q("3 mm")))
sketch12.addConstraint(Sketcher.Constraint("DistanceX", -1, 1, 1, 2, Q("6 mm")))
sketch12.addConstraint(Sketcher.Constraint("DistanceY", 0, 2, 0, 1, Q("6.25 mm")))
sketch12.addConstraint(Sketcher.Constraint("DistanceX", 1, 2, 1, 1, Q("0.378675 mm")))
pocket5 = body.newObject("PartDesign::Pocket", "Pocket004")
pocket5.Profile = sketch12
pocket5.Length = 4.6

sketch13 = body.newObject("Sketcher::SketchObject", "Sketch012")
sketch13.AttachmentSupport = (doc.getObject("XY_Plane"), [""])
sketch13.MapMode = "FlatFace"
sketch13.addGeometry(Part.LineSegment(Vector(1.3, -8.2, 0), Vector(-1.3, -8.2, 0)), False)
sketch13.addGeometry(Part.ArcOfCircle(Part.Circle(Vector(0, -9.6, 0), Vector(0, 0, 1), 1.9), math.radians(45), math.radians(135)), False)
sketch13.addGeometry(Part.LineSegment(Vector(-1.3, 8.2, 0), Vector(1.3, 8.2, 0)), False)
sketch13.addGeometry(Part.ArcOfCircle(Part.Circle(Vector(0, 9.6, 0), Vector(0, 0, 1), 1.9), math.radians(-135), math.radians(-45)), False)
sketch13.addConstraint(Sketcher.Constraint("Coincident", 0, 1, 1, 1))
sketch13.addConstraint(Sketcher.Constraint("Coincident", 1, 2, 0, 2))
sketch13.addConstraint(Sketcher.Constraint("Coincident", 2, 1, 3, 1))
sketch13.addConstraint(Sketcher.Constraint("Coincident", 3, 2, 2, 2))
sketch13.addConstraint(Sketcher.Constraint("Horizontal", 0))
sketch13.addConstraint(Sketcher.Constraint("Horizontal", 2))
sketch13.addConstraint(Sketcher.Constraint("Symmetric", 0, 1, 2, 1, -1, 1))
sketch13.addConstraint(Sketcher.Constraint("PointOnObject", 1, 3, -2))
sketch13.addConstraint(Sketcher.Constraint("PointOnObject", 3, 3, -2))
sketch13.addConstraint(Sketcher.Constraint("Radius", 3, Q("1.9 mm")))
sketch13.addConstraint(Sketcher.Constraint("DistanceY", 1, 3, -1, 1, Q("9.6 mm")))
sketch13.addConstraint(Sketcher.Constraint("DistanceY", 1, 2, 2, 1, Q("16.5 mm")))
sketch13.addConstraint(Sketcher.Constraint("DistanceY", -1, 1, 3, 3, Q("9.595 mm")))
pad8 = body.newObject("PartDesign::Pad", "Pad007")
pad8.Profile = sketch13
pad8.Length = 3.3
doc.recompute()

fillet2 = body.newObject("PartDesign::Fillet", "Fillet001")
fillet2.Base = (pad8, edges_at(pad8, [(-8.2, 8.25, 1.65), (8.2, -8.25, 1.65)]))
fillet2.Radius = 2

sketch14 = body.newObject("Sketcher::SketchObject", "Sketch013")
sketch14.AttachmentSupport = (doc.getObject("XY_Plane"), [""])
sketch14.MapMode = "FlatFace"
sketch14.addGeometry(Part.LineSegment(Vector(1.9, -9.2, 0), Vector(-1.9, -9.2, 0)), False)
sketch14.addGeometry(Part.ArcOfCircle(Part.Circle(Vector(0, -9.6, 0), Vector(0, 0, 1), 1.9), math.radians(11), math.radians(169)), False)
sketch14.addGeometry(Part.LineSegment(Vector(-1.9, 9.2, 0), Vector(1.9, 9.2, 0)), False)
sketch14.addGeometry(Part.ArcOfCircle(Part.Circle(Vector(0, 9.6, 0), Vector(0, 0, 1), 1.9), math.radians(-169), math.radians(-11)), False)
sketch14.addConstraint(Sketcher.Constraint("Coincident", 0, 1, 1, 1))
sketch14.addConstraint(Sketcher.Constraint("Coincident", 1, 2, 0, 2))
sketch14.addConstraint(Sketcher.Constraint("Coincident", 2, 1, 3, 1))
sketch14.addConstraint(Sketcher.Constraint("Coincident", 3, 2, 2, 2))
sketch14.addConstraint(Sketcher.Constraint("Horizontal", 0))
sketch14.addConstraint(Sketcher.Constraint("Horizontal", 2))
sketch14.addConstraint(Sketcher.Constraint("Equal", 1, 3))
sketch14.addConstraint(Sketcher.Constraint("Symmetric", 1, 3, 3, 3, -1, 1))
sketch14.addConstraint(Sketcher.Constraint("Symmetric", 1, 2, 2, 1, -1))
sketch14.addConstraint(Sketcher.Constraint("DistanceY", 1, 3, -1, 1, Q("9.6 mm")))
sketch14.addConstraint(Sketcher.Constraint("DistanceY", 1, 2, 2, 1, Q("18.5 mm")))
sketch14.addConstraint(Sketcher.Constraint("Radius", 1, Q("1.903543 mm")))
pad9 = body.newObject("PartDesign::Pad", "Pad008")
pad9.Profile = sketch14
pad9.Length = 0.6
pad9.Reversed = True

sketch15 = body.newObject("Sketcher::SketchObject", "Sketch014")
sketch15.AttachmentSupport = (doc.getObject("XY_Plane"), [""])
sketch15.MapMode = "FlatFace"
sketch15.AttachmentOffset = App.Placement(Vector(0, 0, -0.6), App.Rotation())
sketch15.addGeometry(Part.Circle(Vector(0, 9.6, 0), Vector(0, 0, 1), 1.3), False)
sketch15.addGeometry(Part.Circle(Vector(0, -9.6, 0), Vector(0, 0, 1), 1.3), False)
sketch15.addConstraint(Sketcher.Constraint("Equal", 0, 1))
sketch15.addConstraint(Sketcher.Constraint("Symmetric", 0, 3, 1, 3, -1, 1))
sketch15.addConstraint(Sketcher.Constraint("PointOnObject", 0, 3, -2))
sketch15.addConstraint(Sketcher.Constraint("Diameter", 0, Q("2.6 mm")))
sketch15.addConstraint(Sketcher.Constraint("DistanceY", -1, 1, 0, 3, Q("9.6 mm")))
pocket6 = body.newObject("PartDesign::Pocket", "Pocket005")
pocket6.Profile = sketch15
pocket6.Type = "ThroughAll"
pocket6.Reversed = True

doc.recompute()
